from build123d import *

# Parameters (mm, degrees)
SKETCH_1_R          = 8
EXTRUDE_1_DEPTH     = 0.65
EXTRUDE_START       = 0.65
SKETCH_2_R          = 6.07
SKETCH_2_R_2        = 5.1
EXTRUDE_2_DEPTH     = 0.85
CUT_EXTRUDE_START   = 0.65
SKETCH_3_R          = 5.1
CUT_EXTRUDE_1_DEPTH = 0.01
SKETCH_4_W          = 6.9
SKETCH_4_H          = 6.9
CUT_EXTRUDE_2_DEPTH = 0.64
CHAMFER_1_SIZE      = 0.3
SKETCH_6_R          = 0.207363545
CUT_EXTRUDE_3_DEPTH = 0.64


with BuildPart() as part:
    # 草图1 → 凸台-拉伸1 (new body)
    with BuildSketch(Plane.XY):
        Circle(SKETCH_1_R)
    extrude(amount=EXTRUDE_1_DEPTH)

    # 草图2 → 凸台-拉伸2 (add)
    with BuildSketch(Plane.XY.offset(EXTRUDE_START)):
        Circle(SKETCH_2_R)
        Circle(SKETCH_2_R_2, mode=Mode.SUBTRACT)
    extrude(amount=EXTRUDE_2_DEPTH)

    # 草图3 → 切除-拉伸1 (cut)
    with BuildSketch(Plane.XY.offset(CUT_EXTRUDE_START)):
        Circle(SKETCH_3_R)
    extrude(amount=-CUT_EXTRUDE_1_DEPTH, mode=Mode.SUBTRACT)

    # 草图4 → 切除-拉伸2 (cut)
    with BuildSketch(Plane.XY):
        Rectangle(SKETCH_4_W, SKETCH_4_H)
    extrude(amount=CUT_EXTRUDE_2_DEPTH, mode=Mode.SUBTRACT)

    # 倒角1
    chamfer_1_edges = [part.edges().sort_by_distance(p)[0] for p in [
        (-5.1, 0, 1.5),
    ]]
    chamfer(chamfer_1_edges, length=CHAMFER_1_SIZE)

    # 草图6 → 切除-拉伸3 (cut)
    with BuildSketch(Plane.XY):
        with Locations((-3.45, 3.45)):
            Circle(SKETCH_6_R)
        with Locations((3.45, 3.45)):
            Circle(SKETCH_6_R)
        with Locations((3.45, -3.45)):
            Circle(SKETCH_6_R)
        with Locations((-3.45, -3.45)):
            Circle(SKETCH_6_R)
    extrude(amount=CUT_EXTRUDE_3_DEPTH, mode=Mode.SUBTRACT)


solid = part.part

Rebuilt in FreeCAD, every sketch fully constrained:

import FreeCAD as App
import Part
import Sketcher

V = App.Vector
Q = App.Units.Quantity


def edges_at(feature, points):
    """Names of the edges that pass closest to the given points."""
    edges = feature.Shape.Edges
    near = lambda p: min(range(len(edges)), key=lambda i: edges[i].distToShape(Part.Vertex(*p))[0])
    return sorted({f"Edge{near(p) + 1}" for p in points})

doc = App.newDocument("Part")
body = doc.addObject("PartDesign::Body", "Body")

sketch1 = body.newObject("Sketcher::SketchObject", "Sketch")
sketch1.AttachmentSupport = (doc.getObject("XY_Plane"), [""])
sketch1.MapMode = "FlatFace"
sketch1.addGeometry(Part.Circle(V(0, 0, 0), V(0, 0, 1), 8), False)
sketch1.addConstraint(Sketcher.Constraint("Coincident", 0, 3, -1, 1))
sketch1.addConstraint(Sketcher.Constraint("Diameter", 0, Q("16 mm")))
pad1 = body.newObject("PartDesign::Pad", "Pad")
pad1.Profile = sketch1
pad1.Length = 0.65

sketch2 = body.newObject("Sketcher::SketchObject", "Sketch001")
sketch2.AttachmentSupport = (doc.getObject("XY_Plane"), [""])
sketch2.MapMode = "FlatFace"
sketch2.AttachmentOffset = App.Placement(V(0, 0, 0.65), App.Rotation())
sketch2.addGeometry(Part.Circle(V(0, 0, 0), V(0, 0, 1), 6), False)
sketch2.addGeometry(Part.Circle(V(0, 0, 0), V(0, 0, 1), 5), False)
sketch2.addConstraint(Sketcher.Constraint("Coincident", 0, 3, -1, 1))
sketch2.addConstraint(Sketcher.Constraint("Coincident", 1, 3, -1, 1))
sketch2.addConstraint(Sketcher.Constraint("Diameter", 1, Q("10.2 mm")))
sketch2.addConstraint(Sketcher.Constraint("Diameter", 0, Q("12.14 mm")))
pad2 = body.newObject("PartDesign::Pad", "Pad001")
pad2.Profile = sketch2
pad2.Length = 0.85

sketch3 = body.newObject("Sketcher::SketchObject", "Sketch002")
sketch3.AttachmentSupport = (doc.getObject("XY_Plane"), [""])
sketch3.MapMode = "FlatFace"
sketch3.AttachmentOffset = App.Placement(V(0, 0, 0.65), App.Rotation())
sketch3.addGeometry(Part.Circle(V(0, 0, 0), V(0, 0, 1), 5), False)
sketch3.addConstraint(Sketcher.Constraint("Coincident", 0, 3, -1, 1))
sketch3.addConstraint(Sketcher.Constraint("Diameter", 0, Q("10.2 mm")))
pocket1 = body.newObject("PartDesign::Pocket", "Pocket")
pocket1.Profile = sketch3
pocket1.Length = 0.01

sketch4 = body.newObject("Sketcher::SketchObject", "Sketch003")
sketch4.AttachmentSupport = (doc.getObject("XY_Plane"), [""])
sketch4.MapMode = "FlatFace"
sketch4.addGeometry(Part.LineSegment(V(-3, 3, 0), V(-3, -3, 0)), False)
sketch4.addGeometry(Part.LineSegment(V(-3, -3, 0), V(3, -3, 0)), False)
sketch4.addGeometry(Part.LineSegment(V(3, -3, 0), V(3, 3, 0)), False)
sketch4.addGeometry(Part.LineSegment(V(3, 3, 0), V(-3, 3, 0)), False)
sketch4.addConstraint(Sketcher.Constraint("Coincident", 0, 2, 1, 1))
sketch4.addConstraint(Sketcher.Constraint("Coincident", 1, 2, 2, 1))
sketch4.addConstraint(Sketcher.Constraint("Coincident", 2, 2, 3, 1))
sketch4.addConstraint(Sketcher.Constraint("Coincident", 3, 2, 0, 1))
sketch4.addConstraint(Sketcher.Constraint("Vertical", 0))
sketch4.addConstraint(Sketcher.Constraint("Horizontal", 1))
sketch4.addConstraint(Sketcher.Constraint("Vertical", 2))
sketch4.addConstraint(Sketcher.Constraint("Horizontal", 3))
sketch4.addConstraint(Sketcher.Constraint("Symmetric", 0, 2, 2, 2, -1, 1))
sketch4.addConstraint(Sketcher.Constraint("Equal", 3, 0))
sketch4.addConstraint(Sketcher.Constraint("DistanceX", 1, 1, 1, 2, Q("6.9 mm")))
pocket2 = body.newObject("PartDesign::Pocket", "Pocket001")
pocket2.Profile = sketch4
pocket2.Length = 0.64
pocket2.Reversed = True
doc.recompute()

chamfer = body.newObject("PartDesign::Chamfer", "Chamfer")
chamfer.Base = (pocket2, edges_at(pocket2, [(-5.1, 0, 1.5)]))
chamfer.Size = 0.3

sketch5 = body.newObject("Sketcher::SketchObject", "Sketch004")
sketch5.AttachmentSupport = (doc.getObject("XY_Plane"), [""])
sketch5.MapMode = "FlatFace"
sketch5.addGeometry(Part.Circle(V(-3.45, 3.45, 0), V(0, 0, 1), 0.21), False)
sketch5.addGeometry(Part.Circle(V(3.45, 3.45, 0), V(0, 0, 1), 0.21), False)
sketch5.addGeometry(Part.Circle(V(3.45, -3.45, 0), V(0, 0, 1), 0.21), False)
sketch5.addGeometry(Part.Circle(V(-3.45, -3.45, 0), V(0, 0, 1), 0.21), False)
sketch5.addConstraint(Sketcher.Constraint("Equal", 0, 1))
sketch5.addConstraint(Sketcher.Constraint("Equal", 1, 2))
sketch5.addConstraint(Sketcher.Constraint("Equal", 2, 3))
sketch5.addConstraint(Sketcher.Constraint("Symmetric", 0, 3, 2, 3, -1, 1))
sketch5.addConstraint(Sketcher.Constraint("Symmetric", 1, 3, 3, 3, -1, 1))
sketch5.addConstraint(Sketcher.Constraint("Symmetric", 0, 3, 1, 3, -2))
sketch5.addConstraint(Sketcher.Constraint("DistanceX", 0, 3, 1, 3, Q("6.9 mm")))
sketch5.addConstraint(Sketcher.Constraint("DistanceY", 2, 3, 1, 3, Q("6.9 mm")))
sketch5.addConstraint(Sketcher.Constraint("Diameter", 0, Q("0.414727 mm")))
pocket3 = body.newObject("PartDesign::Pocket", "Pocket002")
pocket3.Profile = sketch5
pocket3.Length = 0.64
pocket3.Reversed = True

doc.recompute()
